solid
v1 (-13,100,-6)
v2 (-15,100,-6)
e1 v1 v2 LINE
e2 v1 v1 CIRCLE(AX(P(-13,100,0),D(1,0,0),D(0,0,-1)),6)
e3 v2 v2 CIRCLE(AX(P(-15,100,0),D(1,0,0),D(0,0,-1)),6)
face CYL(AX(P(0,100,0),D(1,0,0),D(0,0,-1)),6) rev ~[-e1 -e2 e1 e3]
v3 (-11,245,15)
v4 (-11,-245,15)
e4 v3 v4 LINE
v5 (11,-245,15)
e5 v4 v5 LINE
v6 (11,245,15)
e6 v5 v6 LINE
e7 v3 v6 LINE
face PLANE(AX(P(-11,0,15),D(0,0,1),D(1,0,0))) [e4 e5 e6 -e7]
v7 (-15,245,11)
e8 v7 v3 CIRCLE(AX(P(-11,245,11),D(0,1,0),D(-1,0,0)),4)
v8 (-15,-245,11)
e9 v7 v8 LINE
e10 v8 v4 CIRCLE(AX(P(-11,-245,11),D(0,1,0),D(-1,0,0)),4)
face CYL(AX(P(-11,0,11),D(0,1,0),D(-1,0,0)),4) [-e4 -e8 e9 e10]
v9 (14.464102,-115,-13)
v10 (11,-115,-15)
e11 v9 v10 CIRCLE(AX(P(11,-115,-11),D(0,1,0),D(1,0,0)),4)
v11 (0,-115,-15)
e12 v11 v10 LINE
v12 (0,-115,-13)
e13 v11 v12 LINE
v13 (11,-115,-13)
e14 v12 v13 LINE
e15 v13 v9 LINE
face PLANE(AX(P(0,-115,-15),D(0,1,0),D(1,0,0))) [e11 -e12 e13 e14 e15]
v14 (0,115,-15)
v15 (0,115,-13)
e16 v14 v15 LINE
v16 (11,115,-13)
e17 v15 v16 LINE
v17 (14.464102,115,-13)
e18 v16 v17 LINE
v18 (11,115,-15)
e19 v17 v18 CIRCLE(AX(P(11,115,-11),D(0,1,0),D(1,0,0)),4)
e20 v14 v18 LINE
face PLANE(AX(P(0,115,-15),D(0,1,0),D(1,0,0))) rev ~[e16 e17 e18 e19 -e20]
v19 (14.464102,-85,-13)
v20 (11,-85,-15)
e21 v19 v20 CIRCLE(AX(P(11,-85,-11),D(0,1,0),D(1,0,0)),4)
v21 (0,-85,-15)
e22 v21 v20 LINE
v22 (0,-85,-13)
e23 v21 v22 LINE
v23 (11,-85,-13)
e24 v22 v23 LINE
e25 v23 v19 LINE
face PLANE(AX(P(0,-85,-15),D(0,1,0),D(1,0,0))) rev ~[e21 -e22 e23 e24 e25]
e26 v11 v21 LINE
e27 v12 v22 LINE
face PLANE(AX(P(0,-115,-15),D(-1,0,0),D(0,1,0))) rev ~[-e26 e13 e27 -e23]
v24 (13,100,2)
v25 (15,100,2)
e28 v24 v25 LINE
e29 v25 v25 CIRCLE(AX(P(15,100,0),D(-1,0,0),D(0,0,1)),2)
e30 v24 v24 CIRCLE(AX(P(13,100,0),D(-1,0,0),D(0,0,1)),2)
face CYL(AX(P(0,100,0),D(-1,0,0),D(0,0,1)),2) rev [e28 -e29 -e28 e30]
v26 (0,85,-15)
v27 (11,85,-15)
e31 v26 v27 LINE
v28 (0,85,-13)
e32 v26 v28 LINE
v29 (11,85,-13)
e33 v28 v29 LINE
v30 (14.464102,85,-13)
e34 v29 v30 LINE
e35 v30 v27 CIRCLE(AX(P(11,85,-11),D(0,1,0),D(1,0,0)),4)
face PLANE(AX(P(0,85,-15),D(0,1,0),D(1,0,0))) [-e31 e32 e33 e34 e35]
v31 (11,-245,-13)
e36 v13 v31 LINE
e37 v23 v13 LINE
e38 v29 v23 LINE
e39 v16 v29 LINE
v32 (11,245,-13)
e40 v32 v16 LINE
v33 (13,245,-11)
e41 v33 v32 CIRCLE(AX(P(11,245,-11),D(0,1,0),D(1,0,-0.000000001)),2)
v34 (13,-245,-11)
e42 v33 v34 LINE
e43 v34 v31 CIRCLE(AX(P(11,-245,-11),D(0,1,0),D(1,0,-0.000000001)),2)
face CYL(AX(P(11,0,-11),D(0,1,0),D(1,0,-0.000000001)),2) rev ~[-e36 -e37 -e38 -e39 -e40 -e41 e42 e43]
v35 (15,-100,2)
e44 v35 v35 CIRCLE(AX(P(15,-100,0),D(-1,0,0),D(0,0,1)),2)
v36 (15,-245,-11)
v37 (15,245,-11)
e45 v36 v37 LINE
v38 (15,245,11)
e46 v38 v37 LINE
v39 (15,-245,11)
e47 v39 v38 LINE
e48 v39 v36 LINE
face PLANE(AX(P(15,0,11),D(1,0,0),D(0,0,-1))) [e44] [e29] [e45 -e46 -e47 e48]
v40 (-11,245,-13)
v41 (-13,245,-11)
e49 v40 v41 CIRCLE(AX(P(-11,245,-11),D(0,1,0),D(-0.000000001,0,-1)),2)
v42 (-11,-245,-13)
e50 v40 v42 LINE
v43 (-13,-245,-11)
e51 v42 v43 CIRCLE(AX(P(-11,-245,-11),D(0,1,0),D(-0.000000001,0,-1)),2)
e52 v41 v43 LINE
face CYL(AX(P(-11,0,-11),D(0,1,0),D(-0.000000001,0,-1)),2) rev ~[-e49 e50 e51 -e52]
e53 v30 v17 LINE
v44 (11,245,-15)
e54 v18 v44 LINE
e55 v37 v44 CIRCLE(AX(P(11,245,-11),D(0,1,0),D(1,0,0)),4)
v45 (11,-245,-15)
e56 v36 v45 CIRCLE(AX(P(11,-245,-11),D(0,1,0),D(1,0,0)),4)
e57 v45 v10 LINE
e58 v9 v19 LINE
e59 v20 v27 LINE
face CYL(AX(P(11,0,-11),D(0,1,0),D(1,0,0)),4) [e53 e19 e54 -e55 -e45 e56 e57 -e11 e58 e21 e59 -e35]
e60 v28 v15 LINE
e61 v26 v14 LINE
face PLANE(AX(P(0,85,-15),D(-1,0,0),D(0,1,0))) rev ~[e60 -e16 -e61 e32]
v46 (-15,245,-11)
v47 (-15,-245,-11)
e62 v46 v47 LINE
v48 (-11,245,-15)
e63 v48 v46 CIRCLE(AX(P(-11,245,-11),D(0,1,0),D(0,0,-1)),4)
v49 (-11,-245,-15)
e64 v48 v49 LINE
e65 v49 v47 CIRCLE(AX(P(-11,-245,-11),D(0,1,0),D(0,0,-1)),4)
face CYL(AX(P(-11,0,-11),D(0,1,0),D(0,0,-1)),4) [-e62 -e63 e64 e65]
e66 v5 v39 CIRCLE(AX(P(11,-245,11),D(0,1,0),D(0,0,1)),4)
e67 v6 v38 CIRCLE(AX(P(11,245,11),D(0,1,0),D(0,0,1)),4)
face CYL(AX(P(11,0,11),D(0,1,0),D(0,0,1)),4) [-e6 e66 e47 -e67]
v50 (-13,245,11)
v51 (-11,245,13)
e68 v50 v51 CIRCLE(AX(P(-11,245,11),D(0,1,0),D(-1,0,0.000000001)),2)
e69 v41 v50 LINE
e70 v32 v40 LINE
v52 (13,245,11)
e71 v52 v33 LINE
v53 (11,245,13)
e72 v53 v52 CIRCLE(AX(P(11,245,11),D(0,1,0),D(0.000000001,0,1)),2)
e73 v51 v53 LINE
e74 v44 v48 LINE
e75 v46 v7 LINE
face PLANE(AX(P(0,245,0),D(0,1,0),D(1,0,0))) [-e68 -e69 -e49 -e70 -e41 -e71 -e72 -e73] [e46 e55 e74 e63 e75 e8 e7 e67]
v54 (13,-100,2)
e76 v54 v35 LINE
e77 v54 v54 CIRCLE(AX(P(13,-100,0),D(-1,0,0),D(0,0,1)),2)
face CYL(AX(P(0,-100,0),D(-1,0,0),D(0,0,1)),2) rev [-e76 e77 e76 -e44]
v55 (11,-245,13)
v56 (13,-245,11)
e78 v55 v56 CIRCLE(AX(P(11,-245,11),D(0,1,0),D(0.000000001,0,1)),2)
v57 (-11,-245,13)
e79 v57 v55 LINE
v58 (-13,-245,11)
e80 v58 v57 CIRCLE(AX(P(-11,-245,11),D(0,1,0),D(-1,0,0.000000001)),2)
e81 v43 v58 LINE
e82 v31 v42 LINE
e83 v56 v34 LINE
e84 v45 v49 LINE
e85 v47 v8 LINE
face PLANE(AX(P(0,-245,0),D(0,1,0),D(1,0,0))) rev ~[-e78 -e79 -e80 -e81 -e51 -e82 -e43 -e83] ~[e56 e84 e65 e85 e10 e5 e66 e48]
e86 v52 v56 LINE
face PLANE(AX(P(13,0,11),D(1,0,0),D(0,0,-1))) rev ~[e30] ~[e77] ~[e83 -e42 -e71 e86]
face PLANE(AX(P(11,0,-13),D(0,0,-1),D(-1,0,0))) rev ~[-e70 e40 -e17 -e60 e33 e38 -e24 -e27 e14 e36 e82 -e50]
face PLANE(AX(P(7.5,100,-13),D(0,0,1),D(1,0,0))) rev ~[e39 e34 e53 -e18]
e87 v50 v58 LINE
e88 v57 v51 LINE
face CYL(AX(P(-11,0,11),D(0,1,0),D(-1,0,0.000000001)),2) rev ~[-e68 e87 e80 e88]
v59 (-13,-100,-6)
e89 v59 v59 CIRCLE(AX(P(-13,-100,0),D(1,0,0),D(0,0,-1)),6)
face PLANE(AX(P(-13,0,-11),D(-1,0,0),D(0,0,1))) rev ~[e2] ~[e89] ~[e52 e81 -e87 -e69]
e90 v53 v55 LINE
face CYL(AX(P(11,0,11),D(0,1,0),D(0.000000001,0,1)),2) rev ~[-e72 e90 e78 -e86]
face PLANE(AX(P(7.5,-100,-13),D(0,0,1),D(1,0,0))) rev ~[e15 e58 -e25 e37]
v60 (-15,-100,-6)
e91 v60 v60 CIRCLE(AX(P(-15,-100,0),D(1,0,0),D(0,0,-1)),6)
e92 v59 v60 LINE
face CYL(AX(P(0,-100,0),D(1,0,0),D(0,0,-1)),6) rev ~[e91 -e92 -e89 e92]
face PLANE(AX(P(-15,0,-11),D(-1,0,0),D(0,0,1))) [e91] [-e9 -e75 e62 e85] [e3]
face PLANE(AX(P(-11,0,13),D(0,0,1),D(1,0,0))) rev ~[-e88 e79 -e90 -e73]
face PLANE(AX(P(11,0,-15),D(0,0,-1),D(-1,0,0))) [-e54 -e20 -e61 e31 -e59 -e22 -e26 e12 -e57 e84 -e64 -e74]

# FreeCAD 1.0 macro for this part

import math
import FreeCAD as App
import Part
import Sketcher

doc = App.newDocument("Part")
body = doc.addObject("PartDesign::Body", "Body")

sketch1 = body.newObject("Sketcher::SketchObject", "Sketch")
sketch1.AttachmentSupport = (doc.getObject("XZ_Plane"), [""])
sketch1.MapMode = "FlatFace"
sketch1.addGeometry(Part.LineSegment(App.Vector(-11, 15, 0), App.Vector(11, 15, 0)), False)
sketch1.addGeometry(Part.ArcOfCircle(Part.Circle(App.Vector(11, 11, 0), App.Vector(0, 0, 1), 4), math.radians(0), math.radians(90)), False)
sketch1.addGeometry(Part.LineSegment(App.Vector(15, 11, 0), App.Vector(15, -11, 0)), False)
sketch1.addGeometry(Part.ArcOfCircle(Part.Circle(App.Vector(11, -11, 0), App.Vector(0, 0, 1), 4), math.radians(-90), math.radians(0)), False)
sketch1.addGeometry(Part.LineSegment(App.Vector(11, -15, 0), App.Vector(-11, -15, 0)), False)
sketch1.addGeometry(Part.ArcOfCircle(Part.Circle(App.Vector(-11, -11, 0), App.Vector(0, 0, 1), 4), math.radians(180), math.radians(270)), False)
sketch1.addGeometry(Part.LineSegment(App.Vector(-15, -11, 0), App.Vector(-15, 11, 0)), False)
sketch1.addGeometry(Part.ArcOfCircle(Part.Circle(App.Vector(-11, 11, 0), App.Vector(0, 0, 1), 4), math.radians(90), math.radians(180)), False)
sketch1.addGeometry(Part.LineSegment(App.Vector(11, 13, 0), App.Vector(-11, 13, 0)), False)
sketch1.addGeometry(Part.ArcOfCircle(Part.Circle(App.Vector(-11, 11, 0), App.Vector(0, 0, 1), 2), math.radians(90), math.radians(180)), False)
sketch1.addGeometry(Part.LineSegment(App.Vector(-13, 11, 0), App.Vector(-13, -11, 0)), False)
sketch1.addGeometry(Part.ArcOfCircle(Part.Circle(App.Vector(-11, -11, 0), App.Vector(0, 0, 1), 2), math.radians(-180), math.radians(-90)), False)
sketch1.addGeometry(Part.LineSegment(App.Vector(-11, -13, 0), App.Vector(11, -13, 0)), False)
sketch1.addGeometry(Part.ArcOfCircle(Part.Circle(App.Vector(11, -11, 0), App.Vector(0, 0, 1), 2), math.radians(-90), math.radians(0)), False)
sketch1.addGeometry(Part.LineSegment(App.Vector(13, -11, 0), App.Vector(13, 11, 0)), False)
sketch1.addGeometry(Part.ArcOfCircle(Part.Circle(App.Vector(11, 11, 0), App.Vector(0, 0, 1), 2), math.radians(0), math.radians(90)), False)
sketch1.addConstraint(Sketcher.Constraint("Tangent", 0, 2, 1, 2))
sketch1.addConstraint(Sketcher.Constraint("Tangent", 1, 1, 2, 1))
sketch1.addConstraint(Sketcher.Constraint("Tangent", 2, 2, 3, 2))
sketch1.addConstraint(Sketcher.Constraint("Tangent", 3, 1, 4, 1))
sketch1.addConstraint(Sketcher.Constraint("Tangent", 4, 2, 5, 2))
sketch1.addConstraint(Sketcher.Constraint("Tangent", 5, 1, 6, 1))
sketch1.addConstraint(Sketcher.Constraint("Tangent", 6, 2, 7, 2))
sketch1.addConstraint(Sketcher.Constraint("Tangent", 7, 1, 0, 1))
sketch1.addConstraint(Sketcher.Constraint("Tangent", 8, 2, 9, 1))
sketch1.addConstraint(Sketcher.Constraint("Tangent", 9, 2, 10, 1))
sketch1.addConstraint(Sketcher.Constraint("Tangent", 10, 2, 11, 1))
sketch1.addConstraint(Sketcher.Constraint("Tangent", 11, 2, 12, 1))
sketch1.addConstraint(Sketcher.Constraint("Tangent", 12, 2, 13, 1))
sketch1.addConstraint(Sketcher.Constraint("Tangent", 13, 2, 14, 1))
sketch1.addConstraint(Sketcher.Constraint("Tangent", 14, 2, 15, 1))
sketch1.addConstraint(Sketcher.Constraint("Tangent", 15, 2, 8, 1))
sketch1.addConstraint(Sketcher.Constraint("Horizontal", 0))
sketch1.addConstraint(Sketcher.Constraint("Vertical", 2))
sketch1.addConstraint(Sketcher.Constraint("Horizontal", 4))
sketch1.addConstraint(Sketcher.Constraint("Vertical", 6))
sketch1.addConstraint(Sketcher.Constraint("Horizontal", 8))
sketch1.addConstraint(Sketcher.Constraint("Vertical", 10))
sketch1.addConstraint(Sketcher.Constraint("Horizontal", 12))
sketch1.addConstraint(Sketcher.Constraint("Vertical", 14))
sketch1.addConstraint(Sketcher.Constraint("Coincident", 9, 3, 7, 3))
sketch1.addConstraint(Sketcher.Constraint("Coincident", 11, 3, 5, 3))
sketch1.addConstraint(Sketcher.Constraint("Coincident", 13, 3, 3, 3))
sketch1.addConstraint(Sketcher.Constraint("Equal", 1, 3))
sketch1.addConstraint(Sketcher.Constraint("Equal", 3, 5))
sketch1.addConstraint(Sketcher.Constraint("Equal", 5, 7))
sketch1.addConstraint(Sketcher.Constraint("Equal", 13, 15))
sketch1.addConstraint(Sketcher.Constraint("Symmetric", 1, 3, 5, 3, -1, 1))
sketch1.addConstraint(Sketcher.Constraint("Equal", 12, 2))
sketch1.addConstraint(Sketcher.Constraint("Radius", 1, 4.0))
sketch1.addConstraint(Sketcher.Constraint("Radius", 9, 2.0))
sketch1.addConstraint(Sketcher.Constraint("DistanceX", 0, 1, 0, 2, 22.0))
pad1 = body.newObject("PartDesign::Pad", "Pad")
pad1.Profile = sketch1
pad1.Length = 490
pad1.Midplane = True

sketch2 = body.newObject("Sketcher::SketchObject", "Sketch001")
sketch2.AttachmentSupport = (doc.getObject("YZ_Plane"), [""])
sketch2.MapMode = "FlatFace"
sketch2.addGeometry(Part.Circle(App.Vector(-100, 0, 0), App.Vector(0, 0, 1), 2), False)
sketch2.addConstraint(Sketcher.Constraint("PointOnObject", 0, 3, -1))
sketch2.addConstraint(Sketcher.Constraint("Diameter", 0, 4.0))
sketch2.addConstraint(Sketcher.Constraint("DistanceX", 0, 3, -1, 1, 100.0))
pocket1 = body.newObject("PartDesign::Pocket", "Pocket")
pocket1.Profile = sketch2
pocket1.Length = 15
pocket1.Reversed = True

sketch3 = body.newObject("Sketcher::SketchObject", "Sketch002")
sketch3.AttachmentSupport = (doc.getObject("YZ_Plane"), [""])
sketch3.MapMode = "FlatFace"
sketch3.addGeometry(Part.Circle(App.Vector(100, 0, 0), App.Vector(0, 0, 1), 2), False)
sketch3.addConstraint(Sketcher.Constraint("PointOnObject", 0, 3, -1))
sketch3.addConstraint(Sketcher.Constraint("Diameter", 0, 4.0))
sketch3.addConstraint(Sketcher.Constraint("DistanceX", -1, 1, 0, 3, 100.0))
pocket2 = body.newObject("PartDesign::Pocket", "Pocket001")
pocket2.Profile = sketch3
pocket2.Length = 15
pocket2.Reversed = True

sketch4 = body.newObject("Sketcher::SketchObject", "Sketch003")
sketch4.AttachmentSupport = (doc.getObject("YZ_Plane"), [""])
sketch4.MapMode = "FlatFace"
sketch4.addGeometry(Part.Circle(App.Vector(-100, 0, 0), App.Vector(0, 0, 1), 6), False)
sketch4.addConstraint(Sketcher.Constraint("PointOnObject", 0, 3, -1))
sketch4.addConstraint(Sketcher.Constraint("Diameter", 0, 12.0))
sketch4.addConstraint(Sketcher.Constraint("DistanceX", 0, 3, -1, 1, 100.0))
pocket3 = body.newObject("PartDesign::Pocket", "Pocket002")
pocket3.Profile = sketch4
pocket3.Length = 15

sketch5 = body.newObject("Sketcher::SketchObject", "Sketch004")
sketch5.AttachmentSupport = (doc.getObject("YZ_Plane"), [""])
sketch5.MapMode = "FlatFace"
sketch5.addGeometry(Part.Circle(App.Vector(100, 0, 0), App.Vector(0, 0, 1), 6), False)
sketch5.addConstraint(Sketcher.Constraint("PointOnObject", 0, 3, -1))
sketch5.addConstraint(Sketcher.Constraint("Diameter", 0, 12.0))
sketch5.addConstraint(Sketcher.Constraint("DistanceX", -1, 1, 0, 3, 100.0))
pocket4 = body.newObject("PartDesign::Pocket", "Pocket003")
pocket4.Profile = sketch5
pocket4.Length = 15

sketch6 = body.newObject("Sketcher::SketchObject", "Sketch005")
sketch6.AttachmentSupport = (doc.getObject("XY_Plane"), [""])
sketch6.MapMode = "FlatFace"
sketch6.AttachmentOffset = App.Placement(App.Vector(0, 0, -15), App.Rotation())
sketch6.addGeometry(Part.LineSegment(App.Vector(0, -85, 0), App.Vector(0, -115, 0)), False)
sketch6.addGeometry(Part.LineSegment(App.Vector(0, -115, 0), App.Vector(15, -115, 0)), False)
sketch6.addGeometry(Part.LineSegment(App.Vector(15, -115, 0), App.Vector(15, -85, 0)), False)
sketch6.addGeometry(Part.LineSegment(App.Vector(15, -85, 0), App.Vector(0, -85, 0)), False)
sketch6.addGeometry(Part.LineSegment(App.Vector(0, 115, 0), App.Vector(0, 85, 0)), False)
sketch6.addGeometry(Part.LineSegment(App.Vector(0, 85, 0), App.Vector(15, 85, 0)), False)
sketch6.addGeometry(Part.LineSegment(App.Vector(15, 85, 0), App.Vector(15, 115, 0)), False)
sketch6.addGeometry(Part.LineSegment(App.Vector(15, 115, 0), App.Vector(0, 115, 0)), False)
sketch6.addConstraint(Sketcher.Constraint("Coincident", 0, 2, 1, 1))
sketch6.addConstraint(Sketcher.Constraint("Coincident", 1, 2, 2, 1))
sketch6.addConstraint(Sketcher.Constraint("Coincident", 2, 2, 3, 1))
sketch6.addConstraint(Sketcher.Constraint("Coincident", 3, 2, 0, 1))
sketch6.addConstraint(Sketcher.Constraint("Coincident", 4, 2, 5, 1))
sketch6.addConstraint(Sketcher.Constraint("Coincident", 5, 2, 6, 1))
sketch6.addConstraint(Sketcher.Constraint("Coincident", 6, 2, 7, 1))
sketch6.addConstraint(Sketcher.Constraint("Coincident", 7, 2, 4, 1))
sketch6.addConstraint(Sketcher.Constraint("Vertical", 0))
sketch6.addConstraint(Sketcher.Constraint("Horizontal", 1))
sketch6.addConstraint(Sketcher.Constraint("Vertical", 2))
sketch6.addConstraint(Sketcher.Constraint("Horizontal", 3))
sketch6.addConstraint(Sketcher.Constraint("Vertical", 4))
sketch6.addConstraint(Sketcher.Constraint("Horizontal", 5))
sketch6.addConstraint(Sketcher.Constraint("Vertical", 6))
sketch6.addConstraint(Sketcher.Constraint("Horizontal", 7))
sketch6.addConstraint(Sketcher.Constraint("Symmetric", 3, 2, 4, 2, -1, 1))
sketch6.addConstraint(Sketcher.Constraint("Symmetric", 1, 2, 6, 2, -1))
sketch6.addConstraint(Sketcher.Constraint("PointOnObject", 0, 2, -2))
sketch6.addConstraint(Sketcher.Constraint("DistanceX", 1, 1, 1, 2, 15.0))
sketch6.addConstraint(Sketcher.Constraint("DistanceY", 0, 2, 0, 1, 30.0))
sketch6.addConstraint(Sketcher.Constraint("DistanceY", 0, 2, -1, 1, 115.0))
pocket5 = body.newObject("PartDesign::Pocket", "Pocket004")
pocket5.Profile = sketch6
pocket5.Length = 2
pocket5.Reversed = True

doc.recompute()
